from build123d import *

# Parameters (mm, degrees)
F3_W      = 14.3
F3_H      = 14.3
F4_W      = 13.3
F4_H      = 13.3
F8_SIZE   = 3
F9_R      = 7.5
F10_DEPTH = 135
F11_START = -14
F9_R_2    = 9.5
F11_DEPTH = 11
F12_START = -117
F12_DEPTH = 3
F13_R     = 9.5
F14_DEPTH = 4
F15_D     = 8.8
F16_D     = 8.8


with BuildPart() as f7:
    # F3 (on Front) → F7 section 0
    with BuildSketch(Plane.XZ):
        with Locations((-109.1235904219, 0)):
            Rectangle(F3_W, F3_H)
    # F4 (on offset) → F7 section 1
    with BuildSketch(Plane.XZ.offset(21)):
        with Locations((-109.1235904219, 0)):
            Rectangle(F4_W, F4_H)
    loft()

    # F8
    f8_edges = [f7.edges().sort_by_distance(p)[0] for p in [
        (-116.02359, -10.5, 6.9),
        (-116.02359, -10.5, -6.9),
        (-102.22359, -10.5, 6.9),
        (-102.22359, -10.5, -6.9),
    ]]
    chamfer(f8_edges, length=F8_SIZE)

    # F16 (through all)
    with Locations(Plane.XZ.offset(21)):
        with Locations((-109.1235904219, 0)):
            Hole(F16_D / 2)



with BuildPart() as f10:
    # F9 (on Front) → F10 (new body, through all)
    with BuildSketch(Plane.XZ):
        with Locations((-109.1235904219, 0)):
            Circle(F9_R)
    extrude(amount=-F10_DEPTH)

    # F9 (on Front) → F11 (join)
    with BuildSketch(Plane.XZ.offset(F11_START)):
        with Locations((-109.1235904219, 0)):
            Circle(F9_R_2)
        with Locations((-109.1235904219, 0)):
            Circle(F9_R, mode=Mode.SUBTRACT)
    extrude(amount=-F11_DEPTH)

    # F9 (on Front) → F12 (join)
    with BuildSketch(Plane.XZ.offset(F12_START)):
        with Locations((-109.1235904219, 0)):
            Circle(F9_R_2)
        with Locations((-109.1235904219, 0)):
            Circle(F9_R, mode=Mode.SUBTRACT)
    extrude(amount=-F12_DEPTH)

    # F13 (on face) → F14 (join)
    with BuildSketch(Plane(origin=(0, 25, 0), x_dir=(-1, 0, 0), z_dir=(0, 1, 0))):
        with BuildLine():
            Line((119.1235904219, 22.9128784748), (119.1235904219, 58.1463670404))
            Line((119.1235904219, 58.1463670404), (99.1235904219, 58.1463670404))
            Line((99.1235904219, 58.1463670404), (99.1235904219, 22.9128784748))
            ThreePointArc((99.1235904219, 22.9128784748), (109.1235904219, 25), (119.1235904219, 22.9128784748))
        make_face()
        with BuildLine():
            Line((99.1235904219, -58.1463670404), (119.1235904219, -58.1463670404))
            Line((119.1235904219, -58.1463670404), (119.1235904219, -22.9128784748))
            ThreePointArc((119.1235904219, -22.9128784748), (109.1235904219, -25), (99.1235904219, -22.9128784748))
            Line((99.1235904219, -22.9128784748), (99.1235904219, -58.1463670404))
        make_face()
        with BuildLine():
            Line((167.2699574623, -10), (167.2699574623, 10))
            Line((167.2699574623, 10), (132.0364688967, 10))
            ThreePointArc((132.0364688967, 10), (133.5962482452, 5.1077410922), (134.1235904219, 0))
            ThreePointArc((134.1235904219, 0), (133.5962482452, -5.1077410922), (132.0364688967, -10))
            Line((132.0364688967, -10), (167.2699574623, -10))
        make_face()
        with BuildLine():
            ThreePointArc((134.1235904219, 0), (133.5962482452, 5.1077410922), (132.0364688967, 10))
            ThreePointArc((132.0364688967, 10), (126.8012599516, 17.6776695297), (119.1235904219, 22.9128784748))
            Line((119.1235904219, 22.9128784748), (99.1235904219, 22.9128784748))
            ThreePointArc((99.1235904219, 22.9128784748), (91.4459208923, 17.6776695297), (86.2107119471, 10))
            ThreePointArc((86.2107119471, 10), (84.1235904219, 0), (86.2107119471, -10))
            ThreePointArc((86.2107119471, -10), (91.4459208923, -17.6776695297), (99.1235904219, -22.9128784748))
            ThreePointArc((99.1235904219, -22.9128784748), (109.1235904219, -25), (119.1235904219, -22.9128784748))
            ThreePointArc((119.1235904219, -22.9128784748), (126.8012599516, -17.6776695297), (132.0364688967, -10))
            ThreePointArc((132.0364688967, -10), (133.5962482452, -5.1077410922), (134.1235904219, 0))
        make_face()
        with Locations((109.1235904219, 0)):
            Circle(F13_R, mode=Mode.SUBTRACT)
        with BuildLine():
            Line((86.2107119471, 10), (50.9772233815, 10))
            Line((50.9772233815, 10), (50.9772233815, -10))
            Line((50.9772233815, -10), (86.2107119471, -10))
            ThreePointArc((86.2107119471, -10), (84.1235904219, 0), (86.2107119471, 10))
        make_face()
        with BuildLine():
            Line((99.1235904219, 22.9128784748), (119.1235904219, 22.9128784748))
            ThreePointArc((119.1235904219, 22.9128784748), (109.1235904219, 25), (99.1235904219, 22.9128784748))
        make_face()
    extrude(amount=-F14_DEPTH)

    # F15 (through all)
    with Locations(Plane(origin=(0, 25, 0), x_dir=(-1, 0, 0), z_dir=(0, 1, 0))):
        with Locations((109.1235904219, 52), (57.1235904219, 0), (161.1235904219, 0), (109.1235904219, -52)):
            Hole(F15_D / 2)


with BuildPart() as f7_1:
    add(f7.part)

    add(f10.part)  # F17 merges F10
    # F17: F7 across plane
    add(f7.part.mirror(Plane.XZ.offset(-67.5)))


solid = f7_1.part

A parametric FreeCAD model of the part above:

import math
import FreeCAD as App
import Part
import Sketcher
from FreeCAD import Vector


def edges_at(feature, points):
    """Names of the edges that pass closest to the given points."""
    edges = feature.Shape.Edges
    near = lambda p: min(range(len(edges)), key=lambda i: edges[i].distToShape(Part.Vertex(*p))[0])
    return sorted({f"Edge{near(p) + 1}" for p in points})


def add_polygon(sketch, points):
    """Adds a closed chain of lines whose ends are joined by coincident constraints."""
    first, n = sketch.GeometryCount, len(points)
    for a, b in zip(points, points[1:] + points[:1]):
        sketch.addGeometry(Part.LineSegment(App.Vector(*a, 0), App.Vector(*b, 0)), False)
    for i in range(n):
        sketch.addConstraint(Sketcher.Constraint("Coincident", first + i, 2, first + (i + 1) % n, 1))

doc = App.newDocument("Part")
body = doc.addObject("PartDesign::Body", "Body")

# Sketch on XZ plane
sketch1 = body.newObject("Sketcher::SketchObject", "Sketch")
sketch1.AttachmentSupport = (doc.getObject("XZ_Plane"), [""])
sketch1.MapMode = "FlatFace"
add_polygon(sketch1, [(-116, 7), (-116, -7), (-102, -7), (-102, 7)])  # lines 0-3
sketch1.addConstraint([
    Sketcher.Constraint("Vertical", 0),
    Sketcher.Constraint("Horizontal", 1),
    Sketcher.Constraint("Vertical", 2),
    Sketcher.Constraint("Horizontal", 3),
    Sketcher.Constraint("Equal", 3, 0),
    Sketcher.Constraint("DistanceX", 1, 1, 1, 2, 14.3),
    Sketcher.Constraint("DistanceY", 0, 2, -1, 1, 7.15),
    Sketcher.Constraint("DistanceX", 0, 2, -1, 1, 116.27359),
])

# Sketch on XZ plane
sketch2 = body.newObject("Sketcher::SketchObject", "Sketch001")
sketch2.AttachmentSupport = (doc.getObject("XZ_Plane"), [""])
sketch2.MapMode = "FlatFace"
sketch2.AttachmentOffset = App.Placement(Vector(0, 0, 21), App.Rotation())
add_polygon(sketch2, [(-116, 7), (-116, -7), (-102, -7), (-102, 7)])  # lines 0-3
sketch2.addConstraint([
    Sketcher.Constraint("Vertical", 0),
    Sketcher.Constraint("Horizontal", 1),
    Sketcher.Constraint("Vertical", 2),
    Sketcher.Constraint("Horizontal", 3),
    Sketcher.Constraint("Equal", 3, 0),
    Sketcher.Constraint("DistanceX", 1, 1, 1, 2, 13.3),
    Sketcher.Constraint("DistanceY", 0, 2, -1, 1, 6.65),
    Sketcher.Constraint("DistanceX", 0, 2, -1, 1, 115.77359),
])

additiveloft = body.newObject("PartDesign::AdditiveLoft", "AdditiveLoft")
additiveloft.Profile = sketch1
additiveloft.Sections = [sketch2]
doc.recompute()

chamfer = body.newObject("PartDesign::Chamfer", "Chamfer")
chamfer.Base = (additiveloft, edges_at(additiveloft, [
    (-116.024, -10.5, 6.9),
    (-116.024, -10.5, -6.9),
    (-102.224, -10.5, 6.9),
    (-102.224, -10.5, -6.9),
]))
chamfer.Size = 3

# Sketch on XZ plane
sketch3 = body.newObject("Sketcher::SketchObject", "Sketch002")
sketch3.AttachmentSupport = (doc.getObject("XZ_Plane"), [""])
sketch3.MapMode = "FlatFace"
sketch3.AttachmentOffset = App.Placement(Vector(0, 0, 21), App.Rotation())
sketch3.addGeometry(Part.Circle(Vector(-109.1, 0, 0), Vector(0, 0, 1), 4.4), False)
sketch3.addConstraint([
    Sketcher.Constraint("PointOnObject", 0, 3, -1),
    Sketcher.Constraint("Diameter", 0, 8.8),
    Sketcher.Constraint("DistanceX", 0, 3, -1, 1, 109.12359),
])
doc.recompute()
hole = body.newObject("PartDesign::Hole", "Hole")
hole.Profile = sketch3
hole.ThreadType = "None"
hole.Diameter = 8.8
hole.DepthType = "ThroughAll"
body2 = doc.addObject("PartDesign::Body", "Body001")

# Sketch on XZ plane
sketch4 = body2.newObject("Sketcher::SketchObject", "Sketch003")
sketch4.AttachmentSupport = (doc.getObject("XZ_Plane001"), [""])
sketch4.MapMode = "FlatFace"
sketch4.addGeometry(Part.Circle(Vector(-109, 0, 0), Vector(0, 0, 1), 8), False)
sketch4.addConstraint([
    Sketcher.Constraint("PointOnObject", 0, 3, -1),
    Sketcher.Constraint("Diameter", 0, 15.0),
    Sketcher.Constraint("DistanceX", 0, 3, -1, 1, 109.12359),
])
pad1 = body2.newObject("PartDesign::Pad", "Pad")
pad1.Profile = sketch4
pad1.Length = 135
pad1.Reversed = True

# Sketch on XZ plane
sketch5 = body2.newObject("Sketcher::SketchObject", "Sketch004")
sketch5.AttachmentSupport = (doc.getObject("XZ_Plane001"), [""])
sketch5.MapMode = "FlatFace"
sketch5.AttachmentOffset = App.Placement(Vector(0, 0, -14), App.Rotation())
sketch5.addGeometry([
    Part.Circle(Vector(-109, 0, 0), Vector(0, 0, 1), 10),
    Part.Circle(Vector(-109, 0, 0), Vector(0, 0, 1), 8),
], False)
sketch5.addConstraint([
    Sketcher.Constraint("Coincident", 1, 3, 0, 3),
    Sketcher.Constraint("PointOnObject", 0, 3, -1),
    Sketcher.Constraint("Diameter", 0, 19.0),
    Sketcher.Constraint("Diameter", 1, 15.0),
    Sketcher.Constraint("DistanceX", 0, 3, -1, 1, 109.12359),
])
pad2 = body2.newObject("PartDesign::Pad", "Pad001")
pad2.Profile = sketch5
pad2.Length = 11
pad2.Reversed = True

# Sketch on XZ plane
sketch6 = body2.newObject("Sketcher::SketchObject", "Sketch005")
sketch6.AttachmentSupport = (doc.getObject("XZ_Plane001"), [""])
sketch6.MapMode = "FlatFace"
sketch6.AttachmentOffset = App.Placement(Vector(0, 0, -117), App.Rotation())
sketch6.addGeometry([
    Part.Circle(Vector(-109, 0, 0), Vector(0, 0, 1), 10),
    Part.Circle(Vector(-109, 0, 0), Vector(0, 0, 1), 8),
], False)
sketch6.addConstraint([
    Sketcher.Constraint("Coincident", 1, 3, 0, 3),
    Sketcher.Constraint("PointOnObject", 0, 3, -1),
    Sketcher.Constraint("Diameter", 0, 19.0),
    Sketcher.Constraint("Diameter", 1, 15.0),
    Sketcher.Constraint("DistanceX", 0, 3, -1, 1, 109.12359),
])
pad3 = body2.newObject("PartDesign::Pad", "Pad002")
pad3.Profile = sketch6
pad3.Length = 3
pad3.Reversed = True

# Sketch on XZ plane
sketch7 = body2.newObject("Sketcher::SketchObject", "Sketch006")
sketch7.AttachmentSupport = (doc.getObject("XZ_Plane001"), [""])
sketch7.MapMode = "FlatFace"
sketch7.AttachmentOffset = App.Placement(Vector(0, 0, -25), App.Rotation())
sketch7.addGeometry([
    Part.LineSegment(Vector(-119, 23, 0), Vector(-119, 58, 0)),  # 0
    Part.LineSegment(Vector(-119, 58, 0), Vector(-99, 58, 0)),  # 1
    Part.LineSegment(Vector(-99, 58, 0), Vector(-99, 23, 0)),  # 2
    Part.ArcOfCircle(Part.Circle(Vector(-109, 0, 0), Vector(0, 0, 1), 25), math.radians(24), math.radians(66)),  # 3
    Part.LineSegment(Vector(-86, 10, 0), Vector(-51, 10, 0)),  # 4
    Part.LineSegment(Vector(-51, 10, 0), Vector(-51, -10, 0)),  # 5
    Part.LineSegment(Vector(-51, -10, 0), Vector(-86, -10, 0)),  # 6
    Part.ArcOfCircle(Part.Circle(Vector(-109, 0, 0), Vector(0, 0, 1), 25), math.radians(-66), math.radians(-24)),  # 7
    Part.LineSegment(Vector(-99, -23, 0), Vector(-99, -58, 0)),  # 8
    Part.LineSegment(Vector(-99, -58, 0), Vector(-119, -58, 0)),  # 9
    Part.LineSegment(Vector(-119, -58, 0), Vector(-119, -23, 0)),  # 10
    Part.ArcOfCircle(Part.Circle(Vector(-109, 0, 0), Vector(0, 0, 1), 25), math.radians(-156), math.radians(-114)),  # 11
    Part.LineSegment(Vector(-132, -10, 0), Vector(-167, -10, 0)),  # 12
    Part.LineSegment(Vector(-167, -10, 0), Vector(-167, 10, 0)),  # 13
    Part.LineSegment(Vector(-167, 10, 0), Vector(-132, 10, 0)),  # 14
    Part.ArcOfCircle(Part.Circle(Vector(-109, 0, 0), Vector(0, 0, 1), 25), math.radians(114), math.radians(156)),  # 15
    Part.Circle(Vector(-109, 0, 0), Vector(0, 0, 1), 10),  # 16
], False)
sketch7.addConstraint([
    Sketcher.Constraint("Coincident", 0, 2, 1, 1),
    Sketcher.Constraint("Coincident", 1, 2, 2, 1),
    Sketcher.Constraint("Coincident", 2, 2, 3, 2),
    Sketcher.Constraint("Coincident", 3, 1, 4, 1),
    Sketcher.Constraint("Coincident", 4, 2, 5, 1),
    Sketcher.Constraint("Coincident", 5, 2, 6, 1),
    Sketcher.Constraint("Coincident", 6, 2, 7, 2),
    Sketcher.Constraint("Coincident", 7, 1, 8, 1),
    Sketcher.Constraint("Coincident", 8, 2, 9, 1),
    Sketcher.Constraint("Coincident", 9, 2, 10, 1),
    Sketcher.Constraint("Coincident", 10, 2, 11, 2),
    Sketcher.Constraint("Coincident", 11, 1, 12, 1),
    Sketcher.Constraint("Coincident", 12, 2, 13, 1),
    Sketcher.Constraint("Coincident", 13, 2, 14, 1),
    Sketcher.Constraint("Coincident", 14, 2, 15, 2),
    Sketcher.Constraint("Coincident", 15, 1, 0, 1),
    Sketcher.Constraint("Vertical", 0),
    Sketcher.Constraint("Horizontal", 1),
    Sketcher.Constraint("Vertical", 2),
    Sketcher.Constraint("Horizontal", 4),
    Sketcher.Constraint("Vertical", 5),
    Sketcher.Constraint("Horizontal", 6),
    Sketcher.Constraint("Vertical", 8),
    Sketcher.Constraint("Horizontal", 9),
    Sketcher.Constraint("Vertical", 10),
    Sketcher.Constraint("Horizontal", 12),
    Sketcher.Constraint("Vertical", 13),
    Sketcher.Constraint("Horizontal", 14),
    Sketcher.Constraint("Coincident", 7, 3, 3, 3),
    Sketcher.Constraint("Coincident", 11, 3, 3, 3),
    Sketcher.Constraint("Coincident", 15, 3, 3, 3),
    Sketcher.Constraint("Coincident", 16, 3, 3, 3),
    Sketcher.Constraint("Equal", 3, 7),
    Sketcher.Constraint("Equal", 7, 11),
    Sketcher.Constraint("Equal", 11, 15),
    Sketcher.Constraint("Symmetric", 3, 1, 6, 2, -1),
    Sketcher.Constraint("Symmetric", 1, 2, 8, 2, -1),
    Sketcher.Constraint("Horizontal", 7, 1, 10, 2),
    Sketcher.Constraint("Horizontal", 6, 2, 11, 1),
    Sketcher.Constraint("Horizontal", 4, 2, 13, 2),
    Sketcher.Constraint("Horizontal", 2, 2, 15, 1),
    Sketcher.Constraint("Equal", 6, 12),
    Sketcher.Constraint("Equal", 14, 0),
    Sketcher.Constraint("Equal", 9, 5),
    Sketcher.Constraint("Diameter", 16, 19.0),
    Sketcher.Constraint("Radius", 3, 25.0),
    Sketcher.Constraint("DistanceX", 1, 1, 1, 2, 20.0),
    Sketcher.Constraint("DistanceX", 4, 1, 4, 2, 35.233489),
    Sketcher.Constraint("DistanceX", 3, 3, -1, 1, 109.12359),
])
pad4 = body2.newObject("PartDesign::Pad", "Pad003")
pad4.Profile = sketch7
pad4.Length = 4

# Sketch on XZ plane
sketch8 = body2.newObject("Sketcher::SketchObject", "Sketch007")
sketch8.AttachmentSupport = (doc.getObject("XZ_Plane001"), [""])
sketch8.MapMode = "FlatFace"
sketch8.AttachmentOffset = App.Placement(Vector(0, 0, -25), App.Rotation())
sketch8.addGeometry([
    Part.Circle(Vector(-109.1, 52, 0), Vector(0, 0, 1), 4.4),
    Part.Circle(Vector(-57.1, 0, 0), Vector(0, 0, 1), 4.4),
    Part.Circle(Vector(-161.1, 0, 0), Vector(0, 0, 1), 4.4),
    Part.Circle(Vector(-109.1, -52, 0), Vector(0, 0, 1), 4.4),
], False)
sketch8.addConstraint([
    Sketcher.Constraint("Equal", 0, 1),
    Sketcher.Constraint("Equal", 1, 2),
    Sketcher.Constraint("Equal", 2, 3),
    Sketcher.Constraint("Symmetric", 0, 3, 3, 3, -1),
    Sketcher.Constraint("PointOnObject", 1, 3, -1),
    Sketcher.Constraint("PointOnObject", 2, 3, -1),
    Sketcher.Constraint("Diameter", 0, 8.8),
    Sketcher.Constraint("DistanceY", -1, 1, 0, 3, 52.0),
    Sketcher.Constraint("DistanceX", 0, 3, 1, 3, 52.0),
    Sketcher.Constraint("DistanceX", 2, 3, 0, 3, 52.0),
    Sketcher.Constraint("DistanceX", 0, 3, -1, 1, 109.12359),
])
doc.recompute()
hole2 = body2.newObject("PartDesign::Hole", "Hole001")
hole2.Profile = sketch8
hole2.ThreadType = "None"
hole2.Diameter = 8.8
hole2.DepthType = "ThroughAll"
hole2.Reversed = True
body3 = doc.addObject("PartDesign::Body", "Body002")
doc.recompute()

body3.BaseFeature = body
doc.recompute()

boolean = body3.newObject("PartDesign::Boolean", "Boolean")
boolean.Type = "Fuse"
boolean.addObjects([body2])
doc.recompute()

mirroring = doc.addObject("Part::Mirroring", "Mirroring")
mirroring.Source = body
mirroring.Base = Vector(0, 67.5, 0)
mirroring.Normal = Vector(0, -1, 0)
body4 = doc.addObject("PartDesign::Body", "Body003")
body4.BaseFeature = mirroring
boolean2 = body3.newObject("PartDesign::Boolean", "Boolean001")
boolean2.Type = "Fuse"
boolean2.addObjects([body4])
doc.recompute()
mirroring.Visibility = False

doc.recompute()
